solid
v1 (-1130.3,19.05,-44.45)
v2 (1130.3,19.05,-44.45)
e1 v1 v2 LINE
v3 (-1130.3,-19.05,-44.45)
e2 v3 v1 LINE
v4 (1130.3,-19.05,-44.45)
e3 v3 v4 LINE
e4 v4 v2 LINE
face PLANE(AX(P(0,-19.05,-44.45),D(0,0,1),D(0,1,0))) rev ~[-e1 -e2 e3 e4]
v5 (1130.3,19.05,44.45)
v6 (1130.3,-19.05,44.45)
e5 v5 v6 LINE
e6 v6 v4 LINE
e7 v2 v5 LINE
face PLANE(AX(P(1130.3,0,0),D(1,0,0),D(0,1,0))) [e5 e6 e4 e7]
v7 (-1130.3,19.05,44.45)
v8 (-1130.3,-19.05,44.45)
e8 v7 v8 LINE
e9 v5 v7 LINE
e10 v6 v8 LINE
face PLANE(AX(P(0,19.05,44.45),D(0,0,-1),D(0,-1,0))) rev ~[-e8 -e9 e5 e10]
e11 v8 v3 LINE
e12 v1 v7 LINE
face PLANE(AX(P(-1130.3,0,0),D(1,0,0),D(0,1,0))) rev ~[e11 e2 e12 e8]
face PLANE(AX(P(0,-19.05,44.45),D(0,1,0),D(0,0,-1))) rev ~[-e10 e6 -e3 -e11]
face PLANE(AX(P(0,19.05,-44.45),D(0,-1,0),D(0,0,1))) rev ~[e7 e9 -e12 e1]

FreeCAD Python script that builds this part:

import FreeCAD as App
import Part
import Sketcher
from FreeCAD import Vector
Q = App.Units.Quantity


def add_polygon(sketch, points):
    """Adds a closed chain of lines whose ends are joined by coincident constraints."""
    first, n = sketch.GeometryCount, len(points)
    for a, b in zip(points, points[1:] + points[:1]):
        sketch.addGeometry(Part.LineSegment(App.Vector(*a, 0), App.Vector(*b, 0)), False)
    for i in range(n):
        sketch.addConstraint(Sketcher.Constraint("Coincident", first + i, 2, first + (i + 1) % n, 1))

doc = App.newDocument("Part")
body = doc.addObject("PartDesign::Body", "Body")

# Sketch on YZ plane
sketch1 = doc.addObject("Sketcher::SketchObject", "Sketch")
body.addObject(sketch1)
sketch1.AttachmentSupport = (doc.YZ_Plane, [""])
sketch1.MapMode = "FlatFace"
add_polygon(sketch1, [(-19, 44), (-19, -44), (19, -44), (19, 44)])  # lines 0-3
sketch1.addConstraint([
    Sketcher.Constraint("Vertical", 0),
    Sketcher.Constraint("Horizontal", 1),
    Sketcher.Constraint("Vertical", 2),
    Sketcher.Constraint("Horizontal", 3),
    Sketcher.Constraint("Symmetric", 0, 2, 2, 2, -1, 1),
    Sketcher.Constraint("DistanceX", 1, 1, 1, 2, Q("1.5 in")),
    Sketcher.Constraint("DistanceY", 0, 2, 0, 1, Q("3.5 in")),
])
pad1 = doc.addObject("PartDesign::Pad", "Pad")
body.addObject(pad1)
pad1.Profile = sketch1
pad1.Length = Q("89 in")
pad1.Midplane = True

doc.recompute()
